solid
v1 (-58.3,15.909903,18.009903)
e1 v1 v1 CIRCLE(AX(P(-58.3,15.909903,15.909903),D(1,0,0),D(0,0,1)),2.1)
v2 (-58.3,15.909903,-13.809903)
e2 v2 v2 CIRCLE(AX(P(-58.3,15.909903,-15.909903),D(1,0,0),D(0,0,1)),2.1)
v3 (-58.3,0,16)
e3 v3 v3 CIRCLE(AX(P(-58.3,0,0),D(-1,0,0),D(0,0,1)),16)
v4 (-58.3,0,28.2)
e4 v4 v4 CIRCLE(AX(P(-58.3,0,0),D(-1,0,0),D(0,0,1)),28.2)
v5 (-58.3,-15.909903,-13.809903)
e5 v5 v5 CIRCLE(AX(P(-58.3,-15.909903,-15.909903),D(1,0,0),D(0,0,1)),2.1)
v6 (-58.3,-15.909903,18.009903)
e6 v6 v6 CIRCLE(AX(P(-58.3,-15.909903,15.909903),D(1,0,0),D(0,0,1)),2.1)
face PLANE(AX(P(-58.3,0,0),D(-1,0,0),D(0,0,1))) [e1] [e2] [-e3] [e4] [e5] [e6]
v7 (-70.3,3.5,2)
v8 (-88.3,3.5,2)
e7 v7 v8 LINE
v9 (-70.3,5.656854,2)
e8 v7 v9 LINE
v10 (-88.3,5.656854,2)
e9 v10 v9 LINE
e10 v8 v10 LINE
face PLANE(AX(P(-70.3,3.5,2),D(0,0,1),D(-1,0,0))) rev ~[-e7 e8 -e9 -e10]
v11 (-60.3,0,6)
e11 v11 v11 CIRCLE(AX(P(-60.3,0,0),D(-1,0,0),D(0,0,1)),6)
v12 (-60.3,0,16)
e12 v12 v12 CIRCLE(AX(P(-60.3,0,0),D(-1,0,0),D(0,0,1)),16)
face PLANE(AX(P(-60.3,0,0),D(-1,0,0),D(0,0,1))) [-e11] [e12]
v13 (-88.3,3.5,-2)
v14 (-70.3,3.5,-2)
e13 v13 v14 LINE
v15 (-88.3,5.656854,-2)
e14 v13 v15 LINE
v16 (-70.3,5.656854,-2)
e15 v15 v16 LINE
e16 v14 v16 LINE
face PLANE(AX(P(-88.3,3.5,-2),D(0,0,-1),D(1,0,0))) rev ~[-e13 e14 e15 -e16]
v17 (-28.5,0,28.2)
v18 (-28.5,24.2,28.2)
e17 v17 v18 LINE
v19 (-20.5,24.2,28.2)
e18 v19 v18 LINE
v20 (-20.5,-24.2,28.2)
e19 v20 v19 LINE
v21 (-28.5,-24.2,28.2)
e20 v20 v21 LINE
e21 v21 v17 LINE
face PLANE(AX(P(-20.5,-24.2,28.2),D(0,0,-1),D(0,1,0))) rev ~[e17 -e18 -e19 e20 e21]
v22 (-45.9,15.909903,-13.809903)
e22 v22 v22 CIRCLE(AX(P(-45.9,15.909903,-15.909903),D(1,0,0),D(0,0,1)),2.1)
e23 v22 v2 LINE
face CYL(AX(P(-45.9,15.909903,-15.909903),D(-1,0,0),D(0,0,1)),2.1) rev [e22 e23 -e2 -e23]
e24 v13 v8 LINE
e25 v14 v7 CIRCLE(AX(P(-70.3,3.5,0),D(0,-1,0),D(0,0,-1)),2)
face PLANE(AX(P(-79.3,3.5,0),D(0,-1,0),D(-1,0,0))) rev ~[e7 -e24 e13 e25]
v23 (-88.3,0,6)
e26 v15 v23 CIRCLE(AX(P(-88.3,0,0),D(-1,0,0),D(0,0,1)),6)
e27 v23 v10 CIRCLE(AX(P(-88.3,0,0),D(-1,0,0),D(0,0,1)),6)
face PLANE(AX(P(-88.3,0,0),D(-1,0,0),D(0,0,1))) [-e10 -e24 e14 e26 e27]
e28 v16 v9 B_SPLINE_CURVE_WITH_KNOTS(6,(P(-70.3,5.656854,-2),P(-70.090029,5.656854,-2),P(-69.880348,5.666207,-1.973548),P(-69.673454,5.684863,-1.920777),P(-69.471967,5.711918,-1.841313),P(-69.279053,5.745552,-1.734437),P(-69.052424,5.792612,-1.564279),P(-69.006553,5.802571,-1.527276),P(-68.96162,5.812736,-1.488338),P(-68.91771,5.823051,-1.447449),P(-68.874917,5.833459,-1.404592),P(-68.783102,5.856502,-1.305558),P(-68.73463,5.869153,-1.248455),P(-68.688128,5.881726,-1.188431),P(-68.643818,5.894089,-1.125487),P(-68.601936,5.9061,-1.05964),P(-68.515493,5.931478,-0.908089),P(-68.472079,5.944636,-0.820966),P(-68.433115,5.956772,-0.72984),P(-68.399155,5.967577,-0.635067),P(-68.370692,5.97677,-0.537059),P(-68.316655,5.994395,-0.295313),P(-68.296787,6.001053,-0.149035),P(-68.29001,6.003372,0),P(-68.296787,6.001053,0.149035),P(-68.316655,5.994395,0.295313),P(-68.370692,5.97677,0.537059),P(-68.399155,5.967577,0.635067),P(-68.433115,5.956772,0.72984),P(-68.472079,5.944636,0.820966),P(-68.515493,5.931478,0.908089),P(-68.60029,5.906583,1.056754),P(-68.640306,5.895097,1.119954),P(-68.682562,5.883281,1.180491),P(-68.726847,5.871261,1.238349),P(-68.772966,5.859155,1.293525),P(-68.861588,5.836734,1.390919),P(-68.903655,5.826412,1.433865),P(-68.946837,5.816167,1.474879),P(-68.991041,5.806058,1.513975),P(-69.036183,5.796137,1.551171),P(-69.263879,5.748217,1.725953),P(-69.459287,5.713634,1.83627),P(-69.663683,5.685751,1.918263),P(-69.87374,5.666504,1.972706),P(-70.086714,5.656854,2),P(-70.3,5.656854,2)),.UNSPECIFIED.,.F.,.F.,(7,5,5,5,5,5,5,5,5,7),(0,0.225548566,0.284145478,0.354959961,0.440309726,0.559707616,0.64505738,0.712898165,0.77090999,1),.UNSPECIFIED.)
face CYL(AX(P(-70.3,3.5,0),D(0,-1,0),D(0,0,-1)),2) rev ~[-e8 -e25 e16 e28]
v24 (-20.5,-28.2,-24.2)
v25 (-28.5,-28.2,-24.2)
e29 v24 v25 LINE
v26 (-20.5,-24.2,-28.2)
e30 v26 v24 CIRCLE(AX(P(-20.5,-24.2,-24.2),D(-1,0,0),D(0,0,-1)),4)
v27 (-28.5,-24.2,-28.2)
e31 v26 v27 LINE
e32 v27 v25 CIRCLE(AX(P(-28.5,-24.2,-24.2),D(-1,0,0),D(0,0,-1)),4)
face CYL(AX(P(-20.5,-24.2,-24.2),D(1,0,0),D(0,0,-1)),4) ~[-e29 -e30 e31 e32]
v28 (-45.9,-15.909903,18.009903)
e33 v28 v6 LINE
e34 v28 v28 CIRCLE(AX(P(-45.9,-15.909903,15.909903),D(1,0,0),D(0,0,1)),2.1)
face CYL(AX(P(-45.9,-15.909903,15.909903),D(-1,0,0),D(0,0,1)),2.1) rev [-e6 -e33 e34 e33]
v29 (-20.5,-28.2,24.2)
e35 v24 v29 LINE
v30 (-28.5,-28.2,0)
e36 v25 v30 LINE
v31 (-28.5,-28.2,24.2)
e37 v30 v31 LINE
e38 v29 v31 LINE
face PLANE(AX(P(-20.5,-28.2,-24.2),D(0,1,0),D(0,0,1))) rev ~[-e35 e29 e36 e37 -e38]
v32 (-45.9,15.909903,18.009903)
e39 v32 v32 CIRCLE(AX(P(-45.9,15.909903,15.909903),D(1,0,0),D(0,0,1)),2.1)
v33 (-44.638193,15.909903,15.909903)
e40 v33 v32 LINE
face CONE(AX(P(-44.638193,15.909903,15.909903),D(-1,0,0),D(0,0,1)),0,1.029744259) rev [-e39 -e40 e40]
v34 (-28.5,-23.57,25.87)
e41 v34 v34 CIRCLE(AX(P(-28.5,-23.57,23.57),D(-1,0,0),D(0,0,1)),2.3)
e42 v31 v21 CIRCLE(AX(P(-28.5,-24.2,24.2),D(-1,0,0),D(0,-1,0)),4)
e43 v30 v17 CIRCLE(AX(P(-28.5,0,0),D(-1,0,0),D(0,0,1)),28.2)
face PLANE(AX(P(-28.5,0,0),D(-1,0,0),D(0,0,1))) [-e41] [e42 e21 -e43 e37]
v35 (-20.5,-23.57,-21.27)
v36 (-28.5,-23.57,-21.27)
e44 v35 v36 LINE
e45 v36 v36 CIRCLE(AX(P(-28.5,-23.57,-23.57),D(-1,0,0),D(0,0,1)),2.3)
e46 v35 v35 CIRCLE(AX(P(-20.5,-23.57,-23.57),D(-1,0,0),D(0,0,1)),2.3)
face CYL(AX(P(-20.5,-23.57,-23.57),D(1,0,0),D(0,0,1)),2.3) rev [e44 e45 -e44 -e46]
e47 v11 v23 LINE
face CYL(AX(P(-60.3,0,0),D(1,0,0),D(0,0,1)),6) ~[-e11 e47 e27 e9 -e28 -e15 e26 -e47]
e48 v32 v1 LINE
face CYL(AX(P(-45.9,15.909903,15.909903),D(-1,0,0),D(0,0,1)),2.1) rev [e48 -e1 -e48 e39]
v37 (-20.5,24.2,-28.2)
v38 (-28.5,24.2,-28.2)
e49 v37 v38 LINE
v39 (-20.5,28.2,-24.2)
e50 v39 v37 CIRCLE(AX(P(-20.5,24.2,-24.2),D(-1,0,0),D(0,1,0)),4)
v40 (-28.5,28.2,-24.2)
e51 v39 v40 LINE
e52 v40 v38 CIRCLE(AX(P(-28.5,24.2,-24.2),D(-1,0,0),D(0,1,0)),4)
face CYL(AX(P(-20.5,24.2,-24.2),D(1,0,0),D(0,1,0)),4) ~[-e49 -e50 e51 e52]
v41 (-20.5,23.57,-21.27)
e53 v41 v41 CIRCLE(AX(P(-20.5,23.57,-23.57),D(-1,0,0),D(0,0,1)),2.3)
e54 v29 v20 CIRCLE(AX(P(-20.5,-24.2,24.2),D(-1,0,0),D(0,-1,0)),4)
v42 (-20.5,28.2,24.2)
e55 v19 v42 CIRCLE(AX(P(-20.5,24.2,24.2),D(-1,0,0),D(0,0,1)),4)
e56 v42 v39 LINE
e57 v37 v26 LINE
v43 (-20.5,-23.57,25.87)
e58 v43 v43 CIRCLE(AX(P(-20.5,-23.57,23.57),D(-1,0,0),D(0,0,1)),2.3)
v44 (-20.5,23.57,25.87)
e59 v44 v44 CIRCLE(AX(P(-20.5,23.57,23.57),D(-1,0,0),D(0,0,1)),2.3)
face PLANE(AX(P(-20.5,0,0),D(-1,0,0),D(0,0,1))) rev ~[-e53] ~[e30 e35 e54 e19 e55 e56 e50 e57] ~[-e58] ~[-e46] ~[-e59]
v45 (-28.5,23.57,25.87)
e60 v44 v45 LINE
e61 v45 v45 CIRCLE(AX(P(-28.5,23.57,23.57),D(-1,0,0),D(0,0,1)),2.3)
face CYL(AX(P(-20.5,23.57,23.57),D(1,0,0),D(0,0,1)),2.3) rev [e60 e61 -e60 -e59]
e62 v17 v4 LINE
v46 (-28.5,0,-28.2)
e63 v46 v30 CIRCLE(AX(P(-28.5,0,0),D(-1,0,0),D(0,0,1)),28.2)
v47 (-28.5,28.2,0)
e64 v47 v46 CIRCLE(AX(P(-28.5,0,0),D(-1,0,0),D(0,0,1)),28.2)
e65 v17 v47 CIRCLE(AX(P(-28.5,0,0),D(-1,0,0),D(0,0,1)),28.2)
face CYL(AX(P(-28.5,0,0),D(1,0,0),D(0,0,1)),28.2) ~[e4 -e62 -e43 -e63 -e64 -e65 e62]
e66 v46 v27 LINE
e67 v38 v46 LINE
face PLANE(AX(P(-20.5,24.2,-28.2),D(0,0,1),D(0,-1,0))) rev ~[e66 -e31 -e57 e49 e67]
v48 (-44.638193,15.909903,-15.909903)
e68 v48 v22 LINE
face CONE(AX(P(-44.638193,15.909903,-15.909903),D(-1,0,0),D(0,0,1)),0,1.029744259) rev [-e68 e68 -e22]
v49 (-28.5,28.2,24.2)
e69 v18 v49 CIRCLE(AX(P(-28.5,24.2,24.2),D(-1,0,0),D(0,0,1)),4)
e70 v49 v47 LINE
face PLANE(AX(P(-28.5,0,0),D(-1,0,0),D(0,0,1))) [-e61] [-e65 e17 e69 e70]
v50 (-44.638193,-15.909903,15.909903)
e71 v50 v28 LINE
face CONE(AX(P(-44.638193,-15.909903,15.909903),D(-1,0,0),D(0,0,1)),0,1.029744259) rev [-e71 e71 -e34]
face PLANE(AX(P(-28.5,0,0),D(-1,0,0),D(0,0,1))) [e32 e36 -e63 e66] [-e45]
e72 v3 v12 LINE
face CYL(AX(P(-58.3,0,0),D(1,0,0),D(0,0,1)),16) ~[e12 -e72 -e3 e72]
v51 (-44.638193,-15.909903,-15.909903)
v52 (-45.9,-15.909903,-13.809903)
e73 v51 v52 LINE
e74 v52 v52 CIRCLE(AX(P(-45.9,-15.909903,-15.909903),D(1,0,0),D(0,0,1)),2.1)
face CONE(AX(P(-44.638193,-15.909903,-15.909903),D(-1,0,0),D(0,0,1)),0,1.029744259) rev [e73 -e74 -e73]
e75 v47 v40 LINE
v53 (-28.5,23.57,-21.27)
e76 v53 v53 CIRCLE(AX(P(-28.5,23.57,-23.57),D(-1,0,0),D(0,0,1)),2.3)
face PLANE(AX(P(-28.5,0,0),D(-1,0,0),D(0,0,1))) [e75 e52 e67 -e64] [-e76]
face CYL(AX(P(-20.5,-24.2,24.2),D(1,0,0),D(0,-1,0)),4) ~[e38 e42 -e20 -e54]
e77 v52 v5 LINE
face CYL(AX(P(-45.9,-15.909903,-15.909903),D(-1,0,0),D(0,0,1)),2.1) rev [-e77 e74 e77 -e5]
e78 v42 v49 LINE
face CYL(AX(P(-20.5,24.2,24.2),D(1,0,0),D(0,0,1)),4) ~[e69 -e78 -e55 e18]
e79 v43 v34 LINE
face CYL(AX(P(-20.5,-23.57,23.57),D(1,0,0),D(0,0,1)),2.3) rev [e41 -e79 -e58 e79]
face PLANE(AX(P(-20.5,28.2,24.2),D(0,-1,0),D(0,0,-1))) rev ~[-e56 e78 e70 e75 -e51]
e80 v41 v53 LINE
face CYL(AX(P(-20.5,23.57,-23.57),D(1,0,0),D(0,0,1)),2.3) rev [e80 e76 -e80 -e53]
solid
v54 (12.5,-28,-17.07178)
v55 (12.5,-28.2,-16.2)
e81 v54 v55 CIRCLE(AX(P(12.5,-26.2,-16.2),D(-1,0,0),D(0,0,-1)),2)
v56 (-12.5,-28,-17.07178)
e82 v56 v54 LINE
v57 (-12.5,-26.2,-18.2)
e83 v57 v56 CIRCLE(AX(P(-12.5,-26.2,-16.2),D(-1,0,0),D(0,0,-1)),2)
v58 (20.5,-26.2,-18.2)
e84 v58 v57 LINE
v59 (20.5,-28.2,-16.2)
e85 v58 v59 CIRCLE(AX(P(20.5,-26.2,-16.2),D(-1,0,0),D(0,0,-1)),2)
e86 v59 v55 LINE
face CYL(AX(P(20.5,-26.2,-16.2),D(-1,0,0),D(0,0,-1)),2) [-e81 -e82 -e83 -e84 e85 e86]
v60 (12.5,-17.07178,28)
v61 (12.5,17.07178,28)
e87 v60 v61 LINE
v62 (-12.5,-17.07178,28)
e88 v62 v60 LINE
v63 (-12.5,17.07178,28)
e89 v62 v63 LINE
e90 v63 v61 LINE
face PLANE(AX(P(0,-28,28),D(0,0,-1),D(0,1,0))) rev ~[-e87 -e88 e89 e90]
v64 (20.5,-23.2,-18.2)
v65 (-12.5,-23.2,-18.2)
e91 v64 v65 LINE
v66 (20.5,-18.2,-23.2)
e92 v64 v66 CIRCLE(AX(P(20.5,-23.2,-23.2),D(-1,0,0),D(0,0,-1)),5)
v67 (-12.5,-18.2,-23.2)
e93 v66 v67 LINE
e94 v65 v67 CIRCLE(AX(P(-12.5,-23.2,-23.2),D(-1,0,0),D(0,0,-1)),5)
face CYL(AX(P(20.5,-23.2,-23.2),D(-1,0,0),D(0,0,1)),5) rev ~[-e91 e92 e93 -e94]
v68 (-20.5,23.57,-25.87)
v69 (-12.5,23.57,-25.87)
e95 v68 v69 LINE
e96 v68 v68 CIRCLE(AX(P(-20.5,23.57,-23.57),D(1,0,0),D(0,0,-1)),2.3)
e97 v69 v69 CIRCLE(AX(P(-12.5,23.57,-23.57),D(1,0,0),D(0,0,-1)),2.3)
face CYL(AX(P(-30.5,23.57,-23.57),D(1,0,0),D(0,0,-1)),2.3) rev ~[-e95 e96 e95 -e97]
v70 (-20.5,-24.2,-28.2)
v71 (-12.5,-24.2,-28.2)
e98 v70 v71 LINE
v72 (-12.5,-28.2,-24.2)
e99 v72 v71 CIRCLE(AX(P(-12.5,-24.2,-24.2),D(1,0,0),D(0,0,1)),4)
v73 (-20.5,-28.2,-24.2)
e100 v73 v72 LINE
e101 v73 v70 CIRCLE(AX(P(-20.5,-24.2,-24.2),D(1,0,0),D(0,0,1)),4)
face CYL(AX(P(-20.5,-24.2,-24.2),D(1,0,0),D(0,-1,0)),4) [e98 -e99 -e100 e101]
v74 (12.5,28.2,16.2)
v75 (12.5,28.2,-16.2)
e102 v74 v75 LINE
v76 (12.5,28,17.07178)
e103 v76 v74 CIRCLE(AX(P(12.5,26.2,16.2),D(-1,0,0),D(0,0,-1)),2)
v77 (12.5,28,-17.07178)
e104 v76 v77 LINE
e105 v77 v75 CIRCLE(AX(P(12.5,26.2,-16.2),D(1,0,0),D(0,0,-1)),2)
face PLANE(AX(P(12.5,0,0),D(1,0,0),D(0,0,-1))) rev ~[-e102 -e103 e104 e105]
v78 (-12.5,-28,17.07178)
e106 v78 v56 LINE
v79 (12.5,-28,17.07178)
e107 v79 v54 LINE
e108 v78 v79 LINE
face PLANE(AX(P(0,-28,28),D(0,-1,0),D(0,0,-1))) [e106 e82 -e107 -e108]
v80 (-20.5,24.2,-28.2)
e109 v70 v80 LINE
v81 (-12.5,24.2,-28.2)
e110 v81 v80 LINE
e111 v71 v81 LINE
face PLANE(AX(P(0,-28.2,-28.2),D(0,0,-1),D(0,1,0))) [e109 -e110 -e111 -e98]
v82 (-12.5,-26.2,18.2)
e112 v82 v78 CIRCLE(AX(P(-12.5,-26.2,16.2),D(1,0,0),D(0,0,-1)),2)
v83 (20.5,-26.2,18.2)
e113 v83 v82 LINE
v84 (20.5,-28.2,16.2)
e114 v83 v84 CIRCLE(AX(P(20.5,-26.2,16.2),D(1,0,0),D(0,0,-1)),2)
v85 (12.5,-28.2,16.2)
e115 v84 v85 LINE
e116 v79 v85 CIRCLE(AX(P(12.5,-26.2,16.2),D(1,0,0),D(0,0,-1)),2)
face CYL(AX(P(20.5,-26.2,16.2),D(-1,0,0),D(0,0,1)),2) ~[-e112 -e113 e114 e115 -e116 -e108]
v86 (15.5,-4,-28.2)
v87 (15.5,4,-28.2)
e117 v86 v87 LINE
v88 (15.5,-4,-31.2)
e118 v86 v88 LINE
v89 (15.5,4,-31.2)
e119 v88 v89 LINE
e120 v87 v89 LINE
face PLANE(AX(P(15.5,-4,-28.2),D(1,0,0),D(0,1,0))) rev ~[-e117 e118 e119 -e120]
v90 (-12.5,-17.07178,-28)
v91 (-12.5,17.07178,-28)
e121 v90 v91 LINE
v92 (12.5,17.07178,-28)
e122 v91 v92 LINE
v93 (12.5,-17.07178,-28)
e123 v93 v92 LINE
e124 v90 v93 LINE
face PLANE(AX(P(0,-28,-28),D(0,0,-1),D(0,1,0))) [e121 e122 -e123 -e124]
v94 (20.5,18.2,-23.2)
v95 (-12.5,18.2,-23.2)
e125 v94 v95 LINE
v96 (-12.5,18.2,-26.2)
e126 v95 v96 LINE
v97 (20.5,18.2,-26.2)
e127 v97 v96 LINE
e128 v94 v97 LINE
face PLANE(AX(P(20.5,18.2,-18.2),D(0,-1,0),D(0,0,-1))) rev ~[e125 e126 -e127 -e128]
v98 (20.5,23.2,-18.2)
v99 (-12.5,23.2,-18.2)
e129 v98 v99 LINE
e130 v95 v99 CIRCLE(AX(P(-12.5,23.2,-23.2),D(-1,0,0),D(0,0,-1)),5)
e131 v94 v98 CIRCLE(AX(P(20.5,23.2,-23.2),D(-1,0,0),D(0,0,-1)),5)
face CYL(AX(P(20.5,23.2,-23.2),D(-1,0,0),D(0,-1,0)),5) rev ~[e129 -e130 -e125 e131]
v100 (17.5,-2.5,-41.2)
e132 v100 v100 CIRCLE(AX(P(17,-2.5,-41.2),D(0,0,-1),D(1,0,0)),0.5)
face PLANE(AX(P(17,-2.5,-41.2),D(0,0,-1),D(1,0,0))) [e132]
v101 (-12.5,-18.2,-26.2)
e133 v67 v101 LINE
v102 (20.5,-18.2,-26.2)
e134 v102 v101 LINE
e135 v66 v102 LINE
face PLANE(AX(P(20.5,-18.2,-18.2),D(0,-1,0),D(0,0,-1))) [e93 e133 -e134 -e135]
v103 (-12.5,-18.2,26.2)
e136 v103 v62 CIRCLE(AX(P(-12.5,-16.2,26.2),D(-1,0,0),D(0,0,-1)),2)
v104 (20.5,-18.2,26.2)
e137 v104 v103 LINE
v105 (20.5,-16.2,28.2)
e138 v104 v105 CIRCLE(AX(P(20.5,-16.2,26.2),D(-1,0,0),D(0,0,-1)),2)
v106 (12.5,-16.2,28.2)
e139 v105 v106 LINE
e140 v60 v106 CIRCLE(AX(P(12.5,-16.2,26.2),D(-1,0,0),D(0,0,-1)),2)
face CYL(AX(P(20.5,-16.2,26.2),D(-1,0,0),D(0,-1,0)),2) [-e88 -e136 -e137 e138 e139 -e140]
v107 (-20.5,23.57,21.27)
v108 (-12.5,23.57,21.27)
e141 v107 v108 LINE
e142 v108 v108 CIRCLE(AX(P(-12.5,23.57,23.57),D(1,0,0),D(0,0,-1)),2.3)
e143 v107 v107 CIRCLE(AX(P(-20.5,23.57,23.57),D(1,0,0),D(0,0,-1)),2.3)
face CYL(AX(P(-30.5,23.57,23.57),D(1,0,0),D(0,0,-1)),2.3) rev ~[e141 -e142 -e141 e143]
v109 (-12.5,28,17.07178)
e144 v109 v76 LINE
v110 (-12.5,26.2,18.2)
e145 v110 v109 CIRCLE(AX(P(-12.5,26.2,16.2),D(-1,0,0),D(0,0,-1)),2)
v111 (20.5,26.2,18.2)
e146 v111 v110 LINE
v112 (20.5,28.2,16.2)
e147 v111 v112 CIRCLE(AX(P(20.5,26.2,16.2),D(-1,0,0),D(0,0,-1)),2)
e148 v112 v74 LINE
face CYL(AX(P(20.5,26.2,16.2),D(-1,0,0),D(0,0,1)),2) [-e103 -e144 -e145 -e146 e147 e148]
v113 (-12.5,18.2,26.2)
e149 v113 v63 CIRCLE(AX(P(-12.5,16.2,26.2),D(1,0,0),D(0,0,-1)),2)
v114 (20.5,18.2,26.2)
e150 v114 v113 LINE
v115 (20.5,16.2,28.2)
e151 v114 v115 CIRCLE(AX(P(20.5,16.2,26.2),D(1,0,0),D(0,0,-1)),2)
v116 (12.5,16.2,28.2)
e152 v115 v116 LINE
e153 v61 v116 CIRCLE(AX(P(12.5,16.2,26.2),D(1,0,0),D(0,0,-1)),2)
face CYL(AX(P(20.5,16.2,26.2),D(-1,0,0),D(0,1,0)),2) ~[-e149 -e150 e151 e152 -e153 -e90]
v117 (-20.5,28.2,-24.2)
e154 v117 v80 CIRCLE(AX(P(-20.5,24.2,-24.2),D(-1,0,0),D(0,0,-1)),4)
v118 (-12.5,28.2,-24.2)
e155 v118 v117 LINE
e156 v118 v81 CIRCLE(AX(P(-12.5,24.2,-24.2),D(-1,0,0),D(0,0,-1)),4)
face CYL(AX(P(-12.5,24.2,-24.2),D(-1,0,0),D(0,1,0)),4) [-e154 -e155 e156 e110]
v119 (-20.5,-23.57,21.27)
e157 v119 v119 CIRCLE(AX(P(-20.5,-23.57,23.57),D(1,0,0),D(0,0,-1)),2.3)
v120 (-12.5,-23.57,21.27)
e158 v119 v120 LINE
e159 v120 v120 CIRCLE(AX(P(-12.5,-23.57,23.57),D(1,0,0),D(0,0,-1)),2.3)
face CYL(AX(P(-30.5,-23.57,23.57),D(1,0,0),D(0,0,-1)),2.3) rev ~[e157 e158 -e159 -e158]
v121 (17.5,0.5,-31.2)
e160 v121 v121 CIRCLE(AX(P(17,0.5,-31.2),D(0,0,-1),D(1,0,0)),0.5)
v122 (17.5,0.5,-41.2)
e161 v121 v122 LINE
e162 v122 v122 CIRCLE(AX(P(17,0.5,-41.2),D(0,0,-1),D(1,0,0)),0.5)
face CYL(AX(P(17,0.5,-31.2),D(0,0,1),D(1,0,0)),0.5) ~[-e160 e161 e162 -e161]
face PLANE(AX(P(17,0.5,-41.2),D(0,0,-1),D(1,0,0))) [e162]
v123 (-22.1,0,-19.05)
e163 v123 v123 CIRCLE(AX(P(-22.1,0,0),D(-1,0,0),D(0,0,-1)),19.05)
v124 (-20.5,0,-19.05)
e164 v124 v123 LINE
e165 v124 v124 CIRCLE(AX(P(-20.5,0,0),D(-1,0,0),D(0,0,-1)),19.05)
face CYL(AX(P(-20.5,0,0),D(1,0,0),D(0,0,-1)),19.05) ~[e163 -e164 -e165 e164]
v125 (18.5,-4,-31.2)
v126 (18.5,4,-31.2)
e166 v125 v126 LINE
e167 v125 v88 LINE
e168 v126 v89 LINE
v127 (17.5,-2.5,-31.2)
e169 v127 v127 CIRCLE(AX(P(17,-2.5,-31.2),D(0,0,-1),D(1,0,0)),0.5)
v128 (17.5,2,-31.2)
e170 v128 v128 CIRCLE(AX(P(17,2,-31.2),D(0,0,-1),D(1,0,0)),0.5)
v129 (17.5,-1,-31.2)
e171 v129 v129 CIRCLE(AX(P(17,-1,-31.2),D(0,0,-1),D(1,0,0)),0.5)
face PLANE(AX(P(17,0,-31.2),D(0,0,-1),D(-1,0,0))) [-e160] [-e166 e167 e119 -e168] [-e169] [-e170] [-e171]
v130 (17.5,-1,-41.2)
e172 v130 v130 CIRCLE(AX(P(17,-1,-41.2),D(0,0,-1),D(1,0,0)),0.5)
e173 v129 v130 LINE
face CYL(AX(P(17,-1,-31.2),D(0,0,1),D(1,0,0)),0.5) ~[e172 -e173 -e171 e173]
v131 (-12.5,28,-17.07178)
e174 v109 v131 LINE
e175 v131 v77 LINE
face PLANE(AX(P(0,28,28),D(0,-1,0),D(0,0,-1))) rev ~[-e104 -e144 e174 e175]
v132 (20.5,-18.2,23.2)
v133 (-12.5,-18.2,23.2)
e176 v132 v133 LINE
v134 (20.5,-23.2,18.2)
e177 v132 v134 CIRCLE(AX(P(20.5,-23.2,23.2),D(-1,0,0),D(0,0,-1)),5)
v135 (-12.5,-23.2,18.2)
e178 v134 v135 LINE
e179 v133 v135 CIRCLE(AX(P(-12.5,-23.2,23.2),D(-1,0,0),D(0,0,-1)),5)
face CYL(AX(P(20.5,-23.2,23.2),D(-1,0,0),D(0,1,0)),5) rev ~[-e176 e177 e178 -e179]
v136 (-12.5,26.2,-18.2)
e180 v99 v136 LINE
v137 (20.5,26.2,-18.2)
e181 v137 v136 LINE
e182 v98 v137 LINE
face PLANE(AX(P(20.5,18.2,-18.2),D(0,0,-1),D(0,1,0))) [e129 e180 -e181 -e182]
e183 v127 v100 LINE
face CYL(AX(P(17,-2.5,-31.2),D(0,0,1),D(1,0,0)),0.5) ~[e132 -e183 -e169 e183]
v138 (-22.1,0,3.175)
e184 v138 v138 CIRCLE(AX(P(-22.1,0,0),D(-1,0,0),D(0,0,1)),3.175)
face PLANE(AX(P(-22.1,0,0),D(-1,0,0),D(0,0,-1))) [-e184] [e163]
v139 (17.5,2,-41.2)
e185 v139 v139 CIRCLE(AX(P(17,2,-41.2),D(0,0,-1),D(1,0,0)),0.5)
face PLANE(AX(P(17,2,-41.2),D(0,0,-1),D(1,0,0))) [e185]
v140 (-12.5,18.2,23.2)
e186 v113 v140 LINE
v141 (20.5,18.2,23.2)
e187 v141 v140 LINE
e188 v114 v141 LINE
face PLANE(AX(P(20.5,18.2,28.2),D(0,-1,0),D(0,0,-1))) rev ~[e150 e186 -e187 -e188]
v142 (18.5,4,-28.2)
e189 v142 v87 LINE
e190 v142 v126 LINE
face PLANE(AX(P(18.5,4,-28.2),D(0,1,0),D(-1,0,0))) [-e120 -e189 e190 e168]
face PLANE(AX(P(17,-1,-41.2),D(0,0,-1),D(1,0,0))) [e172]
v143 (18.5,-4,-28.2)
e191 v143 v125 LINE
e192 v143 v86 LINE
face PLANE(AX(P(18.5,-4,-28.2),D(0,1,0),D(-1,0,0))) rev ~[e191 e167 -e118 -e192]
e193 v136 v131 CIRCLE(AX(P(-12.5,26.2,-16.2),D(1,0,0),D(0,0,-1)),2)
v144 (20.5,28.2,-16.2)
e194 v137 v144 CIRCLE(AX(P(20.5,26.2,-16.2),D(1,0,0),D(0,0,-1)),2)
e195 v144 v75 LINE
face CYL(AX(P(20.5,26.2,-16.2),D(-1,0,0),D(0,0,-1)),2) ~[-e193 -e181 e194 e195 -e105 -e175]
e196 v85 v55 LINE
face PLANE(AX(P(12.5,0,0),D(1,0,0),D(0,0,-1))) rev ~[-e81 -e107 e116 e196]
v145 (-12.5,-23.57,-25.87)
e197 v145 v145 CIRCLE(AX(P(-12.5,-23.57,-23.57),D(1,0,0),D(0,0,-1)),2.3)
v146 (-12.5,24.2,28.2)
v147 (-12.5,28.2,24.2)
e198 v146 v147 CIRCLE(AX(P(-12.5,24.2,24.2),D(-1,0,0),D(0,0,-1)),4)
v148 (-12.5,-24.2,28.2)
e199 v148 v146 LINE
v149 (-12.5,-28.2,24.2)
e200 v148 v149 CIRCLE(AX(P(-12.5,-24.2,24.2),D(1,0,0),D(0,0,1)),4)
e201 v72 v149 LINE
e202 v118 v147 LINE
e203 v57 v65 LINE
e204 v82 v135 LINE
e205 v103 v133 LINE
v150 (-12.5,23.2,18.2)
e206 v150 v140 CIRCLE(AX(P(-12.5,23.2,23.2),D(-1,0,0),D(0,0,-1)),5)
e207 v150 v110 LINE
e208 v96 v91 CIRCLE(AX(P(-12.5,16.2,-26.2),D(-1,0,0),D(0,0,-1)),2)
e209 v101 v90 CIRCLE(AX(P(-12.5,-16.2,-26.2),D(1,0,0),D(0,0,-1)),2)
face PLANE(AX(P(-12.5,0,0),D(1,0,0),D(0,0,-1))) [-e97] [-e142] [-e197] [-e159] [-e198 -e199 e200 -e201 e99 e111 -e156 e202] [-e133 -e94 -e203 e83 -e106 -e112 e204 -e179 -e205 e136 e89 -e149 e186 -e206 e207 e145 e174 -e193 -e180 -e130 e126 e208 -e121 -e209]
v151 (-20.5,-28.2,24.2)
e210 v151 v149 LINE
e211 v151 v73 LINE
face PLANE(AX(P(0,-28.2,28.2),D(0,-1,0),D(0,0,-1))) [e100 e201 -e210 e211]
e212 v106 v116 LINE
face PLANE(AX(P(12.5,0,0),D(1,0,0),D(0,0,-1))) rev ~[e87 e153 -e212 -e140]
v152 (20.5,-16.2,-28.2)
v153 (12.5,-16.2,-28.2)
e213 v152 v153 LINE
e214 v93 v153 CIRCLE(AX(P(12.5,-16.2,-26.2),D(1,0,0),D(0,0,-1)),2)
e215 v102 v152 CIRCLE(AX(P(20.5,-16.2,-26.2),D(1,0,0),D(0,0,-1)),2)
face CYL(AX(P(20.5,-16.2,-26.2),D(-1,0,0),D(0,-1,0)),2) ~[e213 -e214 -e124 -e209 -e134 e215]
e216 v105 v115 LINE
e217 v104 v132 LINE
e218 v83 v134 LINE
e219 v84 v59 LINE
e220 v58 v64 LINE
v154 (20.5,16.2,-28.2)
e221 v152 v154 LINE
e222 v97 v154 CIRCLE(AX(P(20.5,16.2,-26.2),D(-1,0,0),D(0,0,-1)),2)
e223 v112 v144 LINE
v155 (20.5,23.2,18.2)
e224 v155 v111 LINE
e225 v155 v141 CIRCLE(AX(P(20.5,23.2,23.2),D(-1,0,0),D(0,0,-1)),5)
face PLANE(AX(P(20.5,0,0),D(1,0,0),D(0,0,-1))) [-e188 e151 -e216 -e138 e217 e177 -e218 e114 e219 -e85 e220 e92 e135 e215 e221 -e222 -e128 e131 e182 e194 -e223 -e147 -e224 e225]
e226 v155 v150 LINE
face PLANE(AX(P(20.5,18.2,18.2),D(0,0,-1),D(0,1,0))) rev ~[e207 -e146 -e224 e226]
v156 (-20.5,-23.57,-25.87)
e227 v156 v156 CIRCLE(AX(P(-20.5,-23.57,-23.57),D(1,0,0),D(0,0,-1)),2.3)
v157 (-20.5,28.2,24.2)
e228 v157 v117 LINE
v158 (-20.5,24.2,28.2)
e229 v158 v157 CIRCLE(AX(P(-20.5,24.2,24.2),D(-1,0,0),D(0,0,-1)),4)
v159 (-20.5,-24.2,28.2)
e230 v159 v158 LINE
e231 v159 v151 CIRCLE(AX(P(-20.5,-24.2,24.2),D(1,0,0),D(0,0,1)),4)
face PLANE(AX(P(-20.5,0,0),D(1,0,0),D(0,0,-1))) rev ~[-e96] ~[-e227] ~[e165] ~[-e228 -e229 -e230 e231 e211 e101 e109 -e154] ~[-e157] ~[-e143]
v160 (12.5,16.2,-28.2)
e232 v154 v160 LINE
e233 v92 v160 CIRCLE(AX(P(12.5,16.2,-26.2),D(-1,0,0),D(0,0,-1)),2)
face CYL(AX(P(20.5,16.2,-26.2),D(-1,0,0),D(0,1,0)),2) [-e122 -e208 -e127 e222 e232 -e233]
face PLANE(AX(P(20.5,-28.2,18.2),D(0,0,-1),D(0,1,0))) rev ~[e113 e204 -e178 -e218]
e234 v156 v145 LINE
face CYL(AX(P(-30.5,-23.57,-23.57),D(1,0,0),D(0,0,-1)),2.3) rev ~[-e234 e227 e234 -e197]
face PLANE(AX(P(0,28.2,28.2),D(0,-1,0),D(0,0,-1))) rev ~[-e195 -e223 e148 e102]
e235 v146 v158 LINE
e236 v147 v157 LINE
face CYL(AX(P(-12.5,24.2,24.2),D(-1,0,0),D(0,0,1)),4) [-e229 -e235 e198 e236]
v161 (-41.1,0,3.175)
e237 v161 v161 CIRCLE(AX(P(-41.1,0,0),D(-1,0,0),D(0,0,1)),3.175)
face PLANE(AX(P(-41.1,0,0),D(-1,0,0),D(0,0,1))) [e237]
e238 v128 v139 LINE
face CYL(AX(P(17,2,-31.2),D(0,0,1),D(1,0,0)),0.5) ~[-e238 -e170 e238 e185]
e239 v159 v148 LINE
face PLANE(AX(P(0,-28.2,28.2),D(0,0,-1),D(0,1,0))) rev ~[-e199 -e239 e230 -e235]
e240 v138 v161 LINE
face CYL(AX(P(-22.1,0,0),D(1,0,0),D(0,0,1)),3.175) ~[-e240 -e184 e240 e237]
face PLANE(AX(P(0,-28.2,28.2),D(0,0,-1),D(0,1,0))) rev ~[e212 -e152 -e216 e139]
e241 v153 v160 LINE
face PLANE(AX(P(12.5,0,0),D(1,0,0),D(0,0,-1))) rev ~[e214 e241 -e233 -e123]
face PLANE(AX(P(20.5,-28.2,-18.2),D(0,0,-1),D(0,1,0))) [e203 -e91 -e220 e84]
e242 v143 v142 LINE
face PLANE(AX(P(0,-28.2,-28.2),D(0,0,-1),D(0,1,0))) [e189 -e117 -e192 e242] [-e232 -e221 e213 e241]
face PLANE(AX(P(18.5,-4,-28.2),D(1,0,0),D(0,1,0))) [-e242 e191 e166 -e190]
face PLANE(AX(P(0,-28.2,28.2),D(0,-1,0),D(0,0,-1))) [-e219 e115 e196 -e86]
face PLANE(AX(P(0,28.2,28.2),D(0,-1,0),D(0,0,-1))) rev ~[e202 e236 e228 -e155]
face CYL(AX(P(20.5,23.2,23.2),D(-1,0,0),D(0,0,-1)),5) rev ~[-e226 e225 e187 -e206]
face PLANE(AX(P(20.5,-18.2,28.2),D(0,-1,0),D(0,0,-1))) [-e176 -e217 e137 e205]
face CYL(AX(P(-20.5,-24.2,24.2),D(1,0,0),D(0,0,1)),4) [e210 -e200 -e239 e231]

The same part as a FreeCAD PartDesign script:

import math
import FreeCAD as App
import Part
import Sketcher

V = App.Vector
Q = App.Units.Quantity


def edges_at(feature, points):
    """Names of the edges that pass closest to the given points."""
    edges = feature.Shape.Edges
    near = lambda p: min(range(len(edges)), key=lambda i: edges[i].distToShape(Part.Vertex(*p))[0])
    return sorted({f"Edge{near(p) + 1}" for p in points})

doc = App.newDocument("Part")
body = doc.addObject("PartDesign::Body", "Body")

# Sketch on YZ plane
sketch1 = doc.addObject("Sketcher::SketchObject", "Sketch")
body.addObject(sketch1)
sketch1.AttachmentSupport = (doc.YZ_Plane, [""])
sketch1.MapMode = "FlatFace"
sketch1.addGeometry([
    Part.LineSegment(V(28.2, 28.2, 0), V(-28.2, 28.2, 0)),
    Part.LineSegment(V(-28.2, 28.2, 0), V(-28.2, -28.2, 0)),
    Part.LineSegment(V(-28.2, -28.2, 0), V(28.2, -28.2, 0)),
    Part.LineSegment(V(28.2, -28.2, 0), V(28.2, 28.2, 0)),
], False)
sketch1.addConstraint([
    Sketcher.Constraint("Coincident", 0, 2, 1, 1),
    Sketcher.Constraint("Coincident", 1, 2, 2, 1),
    Sketcher.Constraint("Coincident", 2, 2, 3, 1),
    Sketcher.Constraint("Coincident", 3, 2, 0, 1),
    Sketcher.Constraint("Horizontal", 0),
    Sketcher.Constraint("Vertical", 1),
    Sketcher.Constraint("Horizontal", 2),
    Sketcher.Constraint("Vertical", 3),
    Sketcher.Constraint("Symmetric", 0, 2, 2, 2, -1, 1),
    Sketcher.Constraint("Equal", 2, 1),
    Sketcher.Constraint("DistanceX", 0, 2, 0, 1, Q("56.4 mm")),
])
pad1 = doc.addObject("PartDesign::Pad", "Pad")
body.addObject(pad1)
pad1.Profile = sketch1
pad1.Length = 41
pad1.Midplane = True

# Sketch on YZ plane
sketch2 = doc.addObject("Sketcher::SketchObject", "Sketch001")
body.addObject(sketch2)
sketch2.AttachmentSupport = (doc.YZ_Plane, [""])
sketch2.MapMode = "FlatFace"
sketch2.addGeometry([
    Part.LineSegment(V(28.2, 28.2, 0), V(-28.2, 28.2, 0)),  # 0
    Part.LineSegment(V(-28.2, 28.2, 0), V(-28.2, -28.2, 0)),  # 1
    Part.LineSegment(V(-28.2, -28.2, 0), V(28.2, -28.2, 0)),  # 2
    Part.LineSegment(V(28.2, -28.2, 0), V(28.2, 28.2, 0)),  # 3
    Part.LineSegment(V(-28, -28, 0), V(-28, 28, 0)),  # 4
    Part.LineSegment(V(-28, 28, 0), V(28, 28, 0)),  # 5
    Part.LineSegment(V(28, 28, 0), V(28, -28, 0)),  # 6
    Part.LineSegment(V(28, -28, 0), V(-28, -28, 0)),  # 7
], False)
sketch2.addConstraint([
    Sketcher.Constraint("Coincident", 0, 2, 1, 1),
    Sketcher.Constraint("Coincident", 1, 2, 2, 1),
    Sketcher.Constraint("Coincident", 2, 2, 3, 1),
    Sketcher.Constraint("Coincident", 3, 2, 0, 1),
    Sketcher.Constraint("Coincident", 4, 2, 5, 1),
    Sketcher.Constraint("Coincident", 5, 2, 6, 1),
    Sketcher.Constraint("Coincident", 6, 2, 7, 1),
    Sketcher.Constraint("Coincident", 7, 2, 4, 1),
    Sketcher.Constraint("Horizontal", 0),
    Sketcher.Constraint("Vertical", 1),
    Sketcher.Constraint("Horizontal", 2),
    Sketcher.Constraint("Vertical", 3),
    Sketcher.Constraint("Vertical", 4),
    Sketcher.Constraint("Horizontal", 5),
    Sketcher.Constraint("Vertical", 6),
    Sketcher.Constraint("Horizontal", 7),
    Sketcher.Constraint("Symmetric", 0, 2, 2, 2, -1, 1),
    Sketcher.Constraint("Symmetric", 4, 2, 6, 2, -1, 1),
    Sketcher.Constraint("Equal", 2, 1),
    Sketcher.Constraint("Equal", 7, 4),
    Sketcher.Constraint("DistanceX", 5, 1, 5, 2, Q("56 mm")),
    Sketcher.Constraint("DistanceX", 0, 2, 0, 1, Q("56.4 mm")),
])
pocket1 = doc.addObject("PartDesign::Pocket", "Pocket")
body.addObject(pocket1)
pocket1.Profile = sketch2
pocket1.Length = 25
pocket1.Midplane = True

# Sketch on YZ plane
sketch3 = doc.addObject("Sketcher::SketchObject", "Sketch002")
body.addObject(sketch3)
sketch3.AttachmentSupport = (doc.YZ_Plane, [""])
sketch3.MapMode = "FlatFace"
sketch3.AttachmentOffset = App.Placement(V(0, 0, -20.5), App.Rotation())
sketch3.addGeometry(Part.Circle(V(0, 0, 0), V(0, 0, 1), 19.05), False)
sketch3.addConstraint([
    Sketcher.Constraint("Coincident", 0, 3, -1, 1),
    Sketcher.Constraint("Diameter", 0, Q("38.1 mm")),
])
pad2 = doc.addObject("PartDesign::Pad", "Pad001")
body.addObject(pad2)
pad2.Profile = sketch3
pad2.Length = 1.6
pad2.Reversed = True

# Sketch on YZ plane
sketch4 = doc.addObject("Sketcher::SketchObject", "Sketch003")
body.addObject(sketch4)
sketch4.AttachmentSupport = (doc.YZ_Plane, [""])
sketch4.MapMode = "FlatFace"
sketch4.AttachmentOffset = App.Placement(V(0, 0, -22.1), App.Rotation())
sketch4.addGeometry(Part.Circle(V(0, 0, 0), V(0, 0, 1), 3.175), False)
sketch4.addConstraint([
    Sketcher.Constraint("Coincident", 0, 3, -1, 1),
    Sketcher.Constraint("Diameter", 0, Q("6.35 mm")),
])
pad3 = doc.addObject("PartDesign::Pad", "Pad002")
body.addObject(pad3)
pad3.Profile = sketch4
pad3.Length = 19
pad3.Reversed = True

# Sketch on XY plane
sketch5 = doc.addObject("Sketcher::SketchObject", "Sketch004")
body.addObject(sketch5)
sketch5.AttachmentSupport = (doc.XY_Plane, [""])
sketch5.MapMode = "FlatFace"
sketch5.AttachmentOffset = App.Placement(V(0, 0, -28.2), App.Rotation())
sketch5.addGeometry([
    Part.LineSegment(V(18.5, 4, 0), V(18.5, -4, 0)),
    Part.LineSegment(V(18.5, -4, 0), V(15.5, -4, 0)),
    Part.LineSegment(V(15.5, -4, 0), V(15.5, 4, 0)),
    Part.LineSegment(V(15.5, 4, 0), V(18.5, 4, 0)),
], False)
sketch5.addConstraint([
    Sketcher.Constraint("Coincident", 0, 2, 1, 1),
    Sketcher.Constraint("Coincident", 1, 2, 2, 1),
    Sketcher.Constraint("Coincident", 2, 2, 3, 1),
    Sketcher.Constraint("Coincident", 3, 2, 0, 1),
    Sketcher.Constraint("Vertical", 0),
    Sketcher.Constraint("Horizontal", 1),
    Sketcher.Constraint("Vertical", 2),
    Sketcher.Constraint("Horizontal", 3),
    Sketcher.Constraint("DistanceX", 1, 2, 1, 1, Q("3 mm")),
    Sketcher.Constraint("DistanceY", 0, 2, 0, 1, Q("8 mm")),
    Sketcher.Constraint("DistanceY", 0, 2, -1, 1, Q("4 mm")),
    Sketcher.Constraint("DistanceX", -1, 1, 0, 2, Q("18.5 mm")),
])
pad4 = doc.addObject("PartDesign::Pad", "Pad003")
body.addObject(pad4)
pad4.Profile = sketch5
pad4.Length = 3
pad4.Reversed = True

# Sketch on XY plane
sketch6 = doc.addObject("Sketcher::SketchObject", "Sketch005")
body.addObject(sketch6)
sketch6.AttachmentSupport = (doc.XY_Plane, [""])
sketch6.MapMode = "FlatFace"
sketch6.AttachmentOffset = App.Placement(V(0, 0, -31.2), App.Rotation())
sketch6.addGeometry([
    Part.Circle(V(17, -2.5, 0), V(0, 0, 1), 0.5),
    Part.Circle(V(17, -1, 0), V(0, 0, 1), 0.5),
    Part.Circle(V(17, 0.5, 0), V(0, 0, 1), 0.5),
    Part.Circle(V(17, 2, 0), V(0, 0, 1), 0.5),
], False)
sketch6.addConstraint([
    Sketcher.Constraint("Equal", 0, 1),
    Sketcher.Constraint("Equal", 1, 2),
    Sketcher.Constraint("Equal", 2, 3),
    Sketcher.Constraint("Vertical", 0, 3, 1, 3),
    Sketcher.Constraint("Vertical", 1, 3, 2, 3),
    Sketcher.Constraint("Vertical", 2, 3, 3, 3),
    Sketcher.Constraint("Diameter", 0, Q("1 mm")),
    Sketcher.Constraint("DistanceX", -1, 1, 0, 3, Q("17 mm")),
    Sketcher.Constraint("DistanceY", 1, 3, -1, 1, Q("1 mm")),
    Sketcher.Constraint("DistanceY", -1, 1, 3, 3, Q("2 mm")),
    Sketcher.Constraint("DistanceY", 0, 3, 2, 3, Q("3 mm")),
    Sketcher.Constraint("DistanceY", 0, 3, -1, 1, Q("2.5 mm")),
])
pad5 = doc.addObject("PartDesign::Pad", "Pad004")
body.addObject(pad5)
pad5.Profile = sketch6
pad5.Length = 10
pad5.Reversed = True

# Sketch on YZ plane
sketch7 = doc.addObject("Sketcher::SketchObject", "Sketch006")
body.addObject(sketch7)
sketch7.AttachmentSupport = (doc.YZ_Plane, [""])
sketch7.MapMode = "FlatFace"
sketch7.AttachmentOffset = App.Placement(V(0, 0, 20.5), App.Rotation())
sketch7.addGeometry([
    Part.LineSegment(V(-18.2, -18.2, 0), V(-28.2, -18.2, 0)),  # 0
    Part.LineSegment(V(-28.2, -18.2, 0), V(-28.2, -28.2, 0)),  # 1
    Part.LineSegment(V(-28.2, -28.2, 0), V(-18.2, -28.2, 0)),  # 2
    Part.LineSegment(V(-18.2, -28.2, 0), V(-18.2, -18.2, 0)),  # 3
    Part.LineSegment(V(-18.2, 28.2, 0), V(-28.2, 28.2, 0)),  # 4
    Part.LineSegment(V(-28.2, 28.2, 0), V(-28.2, 18.2, 0)),  # 5
    Part.LineSegment(V(-28.2, 18.2, 0), V(-18.2, 18.2, 0)),  # 6
    Part.LineSegment(V(-18.2, 18.2, 0), V(-18.2, 28.2, 0)),  # 7
    Part.LineSegment(V(28.2, 28.2, 0), V(18.2, 28.2, 0)),  # 8
    Part.LineSegment(V(18.2, 28.2, 0), V(18.2, 18.2, 0)),  # 9
    Part.LineSegment(V(18.2, 18.2, 0), V(28.2, 18.2, 0)),  # 10
    Part.LineSegment(V(28.2, 18.2, 0), V(28.2, 28.2, 0)),  # 11
    Part.LineSegment(V(28.2, -18.2, 0), V(18.2, -18.2, 0)),  # 12
    Part.LineSegment(V(18.2, -18.2, 0), V(18.2, -28.2, 0)),  # 13
    Part.LineSegment(V(18.2, -28.2, 0), V(28.2, -28.2, 0)),  # 14
    Part.LineSegment(V(28.2, -28.2, 0), V(28.2, -18.2, 0)),  # 15
], False)
sketch7.addConstraint([
    Sketcher.Constraint("Coincident", 0, 2, 1, 1),
    Sketcher.Constraint("Coincident", 1, 2, 2, 1),
    Sketcher.Constraint("Coincident", 2, 2, 3, 1),
    Sketcher.Constraint("Coincident", 3, 2, 0, 1),
    Sketcher.Constraint("Coincident", 4, 2, 5, 1),
    Sketcher.Constraint("Coincident", 5, 2, 6, 1),
    Sketcher.Constraint("Coincident", 6, 2, 7, 1),
    Sketcher.Constraint("Coincident", 7, 2, 4, 1),
    Sketcher.Constraint("Coincident", 8, 2, 9, 1),
    Sketcher.Constraint("Coincident", 9, 2, 10, 1),
    Sketcher.Constraint("Coincident", 10, 2, 11, 1),
    Sketcher.Constraint("Coincident", 11, 2, 8, 1),
    Sketcher.Constraint("Coincident", 12, 2, 13, 1),
    Sketcher.Constraint("Coincident", 13, 2, 14, 1),
    Sketcher.Constraint("Coincident", 14, 2, 15, 1),
    Sketcher.Constraint("Coincident", 15, 2, 12, 1),
    Sketcher.Constraint("Horizontal", 0),
    Sketcher.Constraint("Vertical", 1),
    Sketcher.Constraint("Horizontal", 2),
    Sketcher.Constraint("Vertical", 3),
    Sketcher.Constraint("Horizontal", 4),
    Sketcher.Constraint("Vertical", 5),
    Sketcher.Constraint("Horizontal", 6),
    Sketcher.Constraint("Vertical", 7),
    Sketcher.Constraint("Horizontal", 8),
    Sketcher.Constraint("Vertical", 9),
    Sketcher.Constraint("Horizontal", 10),
    Sketcher.Constraint("Vertical", 11),
    Sketcher.Constraint("Horizontal", 12),
    Sketcher.Constraint("Vertical", 13),
    Sketcher.Constraint("Horizontal", 14),
    Sketcher.Constraint("Vertical", 15),
    Sketcher.Constraint("Symmetric", 2, 2, 8, 2, -1, 1),
    Sketcher.Constraint("Symmetric", 0, 2, 10, 2, -1, 1),
    Sketcher.Constraint("Symmetric", 6, 2, 12, 2, -1, 1),
    Sketcher.Constraint("Symmetric", 4, 2, 14, 2, -1, 1),
    Sketcher.Constraint("Symmetric", 7, 2, 8, 2, -2),
    Sketcher.Constraint("Symmetric", 5, 2, 10, 2, -2),
    Sketcher.Constraint("Equal", 14, 1),
    Sketcher.Constraint("DistanceX", 0, 2, 0, 1, Q("10 mm")),
    Sketcher.Constraint("DistanceX", 0, 2, -1, 1, Q("28.2 mm")),
    Sketcher.Constraint("DistanceY", 0, 2, -1, 1, Q("18.2 mm")),
])
pocket2 = doc.addObject("PartDesign::Pocket", "Pocket001")
body.addObject(pocket2)
pocket2.Profile = sketch7
pocket2.Length = 33
doc.recompute()

fillet = doc.addObject("PartDesign::Fillet", "Fillet")
body.addObject(fillet)
fillet.Base = (pocket2, edges_at(pocket2, [
    (4, -18.2, 18.2),
    (4, 18.2, 18.2),
    (4, 18.2, -18.2),
    (4, -18.2, -18.2),
]))
fillet.Radius = 5
doc.recompute()

fillet2 = doc.addObject("PartDesign::Fillet", "Fillet001")
body.addObject(fillet2)
fillet2.Base = (fillet, edges_at(fillet, [
    (16.5, 28.2, -18.2),
    (16.5, 28.2, 18.2),
    (16.5, 18.2, 28.2),
    (16.5, -18.2, 28.2),
    (16.5, -28.2, 18.2),
    (16.5, -28.2, -18.2),
    (16.5, -18.2, -28.2),
    (16.5, 18.2, -28.2),
]))
fillet2.Radius = 2

# Sketch on YZ plane
sketch8 = doc.addObject("Sketcher::SketchObject", "Sketch007")
body.addObject(sketch8)
sketch8.AttachmentSupport = (doc.YZ_Plane, [""])
sketch8.MapMode = "FlatFace"
sketch8.AttachmentOffset = App.Placement(V(0, 0, -20.5), App.Rotation())
sketch8.addGeometry([
    Part.Circle(V(23.57, -23.57, 0), V(0, 0, 1), 2.3),
    Part.Circle(V(23.57, 23.57, 0), V(0, 0, 1), 2.3),
    Part.Circle(V(-23.57, 23.57, 0), V(0, 0, 1), 2.3),
    Part.Circle(V(-23.57, -23.57, 0), V(0, 0, 1), 2.3),
], False)
sketch8.addConstraint([
    Sketcher.Constraint("Equal", 0, 1),
    Sketcher.Constraint("Equal", 1, 2),
    Sketcher.Constraint("Equal", 2, 3),
    Sketcher.Constraint("Symmetric", 0, 3, 2, 3, -1, 1),
    Sketcher.Constraint("Symmetric", 1, 3, 3, 3, -1, 1),
    Sketcher.Constraint("Symmetric", 1, 3, 2, 3, -2),
    Sketcher.Constraint("Diameter", 0, Q("4.6 mm")),
    Sketcher.Constraint("DistanceX", -1, 1, 0, 3, Q("23.57 mm")),
    Sketcher.Constraint("DistanceY", 0, 3, -1, 1, Q("23.57 mm")),
])
doc.recompute()
hole = doc.addObject("PartDesign::Hole", "Hole")
body.addObject(hole)
hole.Profile = sketch8
hole.ThreadType = "None"
hole.Diameter = 4.6
hole.DepthType = "Dimension"
hole.Depth = 10
hole.DrillPoint = "Angled"
hole.DrillPointAngle = 118
hole.Reversed = True
doc.recompute()

fillet3 = doc.addObject("PartDesign::Fillet", "Fillet002")
body.addObject(fillet3)
fillet3.Base = (hole, edges_at(hole, [
    (-16.5, 28.2, 28.2),
    (-16.5, 28.2, -28.2),
    (-16.5, -28.2, -28.2),
    (-16.5, -28.2, 28.2),
]))
fillet3.Radius = 4
body2 = doc.addObject("PartDesign::Body", "Body001")

# Sketch on YZ plane
sketch9 = doc.addObject("Sketcher::SketchObject", "Sketch008")
body2.addObject(sketch9)
sketch9.AttachmentSupport = (doc.getObject("YZ_Plane001"), [""])
sketch9.MapMode = "FlatFace"
sketch9.AttachmentOffset = App.Placement(V(0, 0, -20.5), App.Rotation())
sketch9.addGeometry([
    Part.LineSegment(V(-28.2, -24.2, 0), V(-28.2, 24.2, 0)),  # 0
    Part.ArcOfCircle(Part.Circle(V(-24.2, 24.2, 0), V(0, 0, 1), 4), math.radians(90), math.radians(180)),  # 1
    Part.LineSegment(V(-24.2, 28.2, 0), V(24.2, 28.2, 0)),  # 2
    Part.ArcOfCircle(Part.Circle(V(24.2, 24.2, 0), V(0, 0, 1), 4), math.radians(0), math.radians(90)),  # 3
    Part.LineSegment(V(28.2, 24.2, 0), V(28.2, -24.2, 0)),  # 4
    Part.ArcOfCircle(Part.Circle(V(24.2, -24.2, 0), V(0, 0, 1), 4), math.radians(-90), math.radians(0)),  # 5
    Part.LineSegment(V(24.2, -28.2, 0), V(-24.2, -28.2, 0)),  # 6
    Part.ArcOfCircle(Part.Circle(V(-24.2, -24.2, 0), V(0, 0, 1), 4), math.radians(180), math.radians(270)),  # 7
    Part.Circle(V(-23.57, -23.57, 0), V(0, 0, 1), 2.3),  # 8
    Part.Circle(V(-23.57, 23.57, 0), V(0, 0, 1), 2.3),  # 9
    Part.Circle(V(23.57, -23.57, 0), V(0, 0, 1), 2.3),  # 10
    Part.Circle(V(23.57, 23.57, 0), V(0, 0, 1), 2.3),  # 11
], False)
sketch9.addConstraint([
    Sketcher.Constraint("Tangent", 0, 2, 1, 2),
    Sketcher.Constraint("Tangent", 1, 1, 2, 1),
    Sketcher.Constraint("Tangent", 2, 2, 3, 2),
    Sketcher.Constraint("Tangent", 3, 1, 4, 1),
    Sketcher.Constraint("Tangent", 4, 2, 5, 2),
    Sketcher.Constraint("Tangent", 5, 1, 6, 1),
    Sketcher.Constraint("Tangent", 6, 2, 7, 2),
    Sketcher.Constraint("Tangent", 7, 1, 0, 1),
    Sketcher.Constraint("Vertical", 0),
    Sketcher.Constraint("Horizontal", 2),
    Sketcher.Constraint("Vertical", 4),
    Sketcher.Constraint("Horizontal", 6),
    Sketcher.Constraint("Equal", 1, 3),
    Sketcher.Constraint("Equal", 3, 5),
    Sketcher.Constraint("Equal", 5, 7),
    Sketcher.Constraint("Equal", 8, 9),
    Sketcher.Constraint("Equal", 9, 10),
    Sketcher.Constraint("Equal", 10, 11),
    Sketcher.Constraint("Symmetric", 1, 3, 5, 3, -1, 1),
    Sketcher.Constraint("Symmetric", 9, 3, 10, 3, -1, 1),
    Sketcher.Constraint("Symmetric", 8, 3, 11, 3, -1, 1),
    Sketcher.Constraint("Symmetric", 8, 3, 10, 3, -2),
    Sketcher.Constraint("Equal", 6, 0),
    Sketcher.Constraint("Radius", 1, Q("4 mm")),
    Sketcher.Constraint("Diameter", 8, Q("4.6 mm")),
    Sketcher.Constraint("DistanceX", 2, 1, 2, 2, Q("48.4 mm")),
    Sketcher.Constraint("DistanceX", 8, 3, -1, 1, Q("23.57 mm")),
    Sketcher.Constraint("DistanceY", 8, 3, -1, 1, Q("23.57 mm")),
])
pad6 = doc.addObject("PartDesign::Pad", "Pad005")
body2.addObject(pad6)
pad6.Profile = sketch9
pad6.Length = 8
pad6.Reversed = True

# Sketch on YZ plane
sketch10 = doc.addObject("Sketcher::SketchObject", "Sketch009")
body2.addObject(sketch10)
sketch10.AttachmentSupport = (doc.getObject("YZ_Plane001"), [""])
sketch10.MapMode = "FlatFace"
sketch10.AttachmentOffset = App.Placement(V(0, 0, -28.5), App.Rotation())
sketch10.addGeometry(Part.Circle(V(0, 0, 0), V(0, 0, 1), 28.2), False)
sketch10.addConstraint([
    Sketcher.Constraint("Coincident", 0, 3, -1, 1),
    Sketcher.Constraint("Diameter", 0, Q("56.4 mm")),
])
pad7 = doc.addObject("PartDesign::Pad", "Pad006")
body2.addObject(pad7)
pad7.Profile = sketch10
pad7.Length = 29.8
pad7.Reversed = True

# Sketch on YZ plane
sketch11 = doc.addObject("Sketcher::SketchObject", "Sketch010")
body2.addObject(sketch11)
sketch11.AttachmentSupport = (doc.getObject("YZ_Plane001"), [""])
sketch11.MapMode = "FlatFace"
sketch11.AttachmentOffset = App.Placement(V(0, 0, -58.3), App.Rotation())
sketch11.addGeometry(Part.Circle(V(0, 0, 0), V(0, 0, 1), 16), False)
sketch11.addConstraint([
    Sketcher.Constraint("Coincident", 0, 3, -1, 1),
    Sketcher.Constraint("Diameter", 0, Q("32 mm")),
])
pad8 = doc.addObject("PartDesign::Pad", "Pad007")
body2.addObject(pad8)
pad8.Profile = sketch11
pad8.Length = 2
pad8.Reversed = True

# Sketch on YZ plane
sketch12 = doc.addObject("Sketcher::SketchObject", "Sketch011")
body2.addObject(sketch12)
sketch12.AttachmentSupport = (doc.getObject("YZ_Plane001"), [""])
sketch12.MapMode = "FlatFace"
sketch12.AttachmentOffset = App.Placement(V(0, 0, -60.3), App.Rotation())
sketch12.addGeometry(Part.Circle(V(0, 0, 0), V(0, 0, 1), 6), False)
sketch12.addConstraint([
    Sketcher.Constraint("Coincident", 0, 3, -1, 1),
    Sketcher.Constraint("Diameter", 0, Q("12 mm")),
])
pad9 = doc.addObject("PartDesign::Pad", "Pad008")
body2.addObject(pad9)
pad9.Profile = sketch12
pad9.Length = 28
pad9.Reversed = True

# Sketch on XZ plane
sketch13 = doc.addObject("Sketcher::SketchObject", "Sketch012")
body2.addObject(sketch13)
sketch13.AttachmentSupport = (doc.getObject("XZ_Plane001"), [""])
sketch13.MapMode = "FlatFace"
sketch13.AttachmentOffset = App.Placement(V(0, 0, -3.5), App.Rotation())
sketch13.addGeometry([
    Part.LineSegment(V(-70.3, -2, 0), V(-88.3, -2, 0)),
    Part.ArcOfCircle(Part.Circle(V(-88.3, 0, 0), V(0, 0, 1), 2), math.radians(90), math.radians(270)),
    Part.LineSegment(V(-88.3, 2, 0), V(-70.3, 2, 0)),
    Part.ArcOfCircle(Part.Circle(V(-70.3, 0, 0), V(0, 0, 1), 2), math.radians(-90), math.radians(90)),
], False)
sketch13.addConstraint([
    Sketcher.Constraint("Tangent", 0, 2, 1, 2),
    Sketcher.Constraint("Tangent", 1, 1, 2, 1),
    Sketcher.Constraint("Tangent", 2, 2, 3, 2),
    Sketcher.Constraint("Tangent", 3, 1, 0, 1),
    Sketcher.Constraint("Horizontal", 0),
    Sketcher.Constraint("Horizontal", 2),
    Sketcher.Constraint("PointOnObject", 1, 3, -1),
    Sketcher.Constraint("Radius", 1, Q("2 mm")),
    Sketcher.Constraint("DistanceX", 0, 2, 0, 1, Q("18 mm")),
    Sketcher.Constraint("DistanceX", 1, 3, -1, 1, Q("88.3 mm")),
])
pocket3 = doc.addObject("PartDesign::Pocket", "Pocket002")
body2.addObject(pocket3)
pocket3.Profile = sketch13
pocket3.Length = 28

# Sketch on XZ plane
sketch14 = doc.addObject("Sketcher::SketchObject", "Sketch013")
body2.addObject(sketch14)
sketch14.AttachmentSupport = (doc.getObject("XZ_Plane001"), [""])
sketch14.MapMode = "FlatFace"
sketch14.AttachmentOffset = App.Placement(V(0, 0, -15.909903), App.Rotation())
sketch14.addGeometry([
    Part.LineSegment(V(-44.638193, -15.909903, 0), V(-58.3, -15.909903, 0)),
    Part.LineSegment(V(-58.3, -15.909903, 0), V(-58.3, -13.809903, 0)),
    Part.LineSegment(V(-58.3, -13.809903, 0), V(-45.9, -13.809903, 0)),
    Part.LineSegment(V(-45.9, -13.809903, 0), V(-44.638193, -15.909903, 0)),
], False)
sketch14.addGeometry(Part.LineSegment(V(-58.3, -15.909903, 0), V(-44.638193, -15.909903, 0)), True)  # axis
sketch14.addConstraint([
    Sketcher.Constraint("Coincident", 0, 2, 1, 1),
    Sketcher.Constraint("Coincident", 1, 2, 2, 1),
    Sketcher.Constraint("Coincident", 2, 2, 3, 1),
    Sketcher.Constraint("Coincident", 3, 2, 0, 1),
    Sketcher.Constraint("Horizontal", 0),
    Sketcher.Constraint("Vertical", 1),
    Sketcher.Constraint("Horizontal", 2),
    Sketcher.Constraint("Horizontal", 4),
    Sketcher.Constraint("Coincident", 4, 1, 0, 2),
    Sketcher.Constraint("Equal", 0, 4),
    Sketcher.Constraint("Angle", 3, Q("-59 deg")),
    Sketcher.Constraint("DistanceX", 2, 1, 2, 2, Q("12.4 mm")),
    Sketcher.Constraint("DistanceY", 1, 1, 1, 2, Q("2.1 mm")),
    Sketcher.Constraint("DistanceX", 0, 2, -1, 1, Q("58.3 mm")),
    Sketcher.Constraint("DistanceY", 0, 2, -1, 1, Q("15.909903 mm")),
])
groove = doc.addObject("PartDesign::Groove", "Groove")
body2.addObject(groove)
groove.Profile = sketch14
groove.ReferenceAxis = (sketch14, ["Axis0"])
groove.Angle = 360
doc.recompute()

linearpattern = doc.addObject("PartDesign::LinearPattern", "LinearPattern")
body2.addObject(linearpattern)
linearpattern.Originals = [groove]
linearpattern.Direction = (doc.getObject("Z_Axis001"), [""])
linearpattern.Mode = "offset"
linearpattern.Offset = 31.819805
linearpattern.Occurrences = 2
body2.Tip = linearpattern
doc.recompute()

linearpattern2 = doc.addObject("PartDesign::LinearPattern", "LinearPattern001")
body2.addObject(linearpattern2)
linearpattern2.Originals = [groove]
linearpattern2.Direction = (doc.getObject("Y_Axis001"), [""])
linearpattern2.Mode = "offset"
linearpattern2.Offset = 31.819805
linearpattern2.Occurrences = 2
linearpattern2.Reversed = True
body2.Tip = linearpattern2
doc.recompute()

datumline = doc.addObject("PartDesign::Line", "DatumLine")
body2.addObject(datumline)
datumline.Placement = App.Placement(V(0, 0, 0), App.Rotation(V(0, 0, 1), V(0, -0.707106781, 0.707106781)))
linearpattern3 = doc.addObject("PartDesign::LinearPattern", "LinearPattern002")
body2.addObject(linearpattern3)
linearpattern3.Originals = [groove]
linearpattern3.Direction = (datumline, [""])
linearpattern3.Mode = "offset"
linearpattern3.Offset = 45
linearpattern3.Occurrences = 2
body2.Tip = linearpattern3

doc.recompute()
